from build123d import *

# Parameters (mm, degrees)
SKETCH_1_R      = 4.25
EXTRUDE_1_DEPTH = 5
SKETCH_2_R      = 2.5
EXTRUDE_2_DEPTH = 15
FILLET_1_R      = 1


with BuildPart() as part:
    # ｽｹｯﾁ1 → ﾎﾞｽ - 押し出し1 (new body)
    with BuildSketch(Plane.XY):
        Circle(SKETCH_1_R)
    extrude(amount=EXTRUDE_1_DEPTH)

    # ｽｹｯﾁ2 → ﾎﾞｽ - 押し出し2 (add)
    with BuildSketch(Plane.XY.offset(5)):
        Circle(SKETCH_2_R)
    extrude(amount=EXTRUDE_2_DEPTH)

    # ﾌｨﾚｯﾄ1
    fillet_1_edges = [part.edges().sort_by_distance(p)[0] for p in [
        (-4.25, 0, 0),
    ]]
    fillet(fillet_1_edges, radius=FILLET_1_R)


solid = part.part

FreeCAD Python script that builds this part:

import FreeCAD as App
import Part
import Sketcher
Q = App.Units.Quantity


def edges_at(feature, points):
    """Names of the edges that pass closest to the given points."""
    edges = feature.Shape.Edges
    near = lambda p: min(range(len(edges)), key=lambda i: edges[i].distToShape(Part.Vertex(*p))[0])
    return sorted({f"Edge{near(p) + 1}" for p in points})

doc = App.newDocument("Part")
body = doc.addObject("PartDesign::Body", "Body")

# Sketch on XY plane
sketch1 = body.newObject("Sketcher::SketchObject", "Sketch")
sketch1.AttachmentSupport = (doc.getObject("XY_Plane"), [""])
sketch1.MapMode = "FlatFace"
sketch1.addGeometry(Part.Circle(App.Vector(0, 0, 0), App.Vector(0, 0, 1), 4.2), False)
sketch1.addConstraint([
    Sketcher.Constraint("Coincident", 0, 3, -1, 1),
    Sketcher.Constraint("Diameter", 0, Q("8.5 mm")),
])
pad1 = body.newObject("PartDesign::Pad", "Pad")
pad1.Profile = sketch1
pad1.Length = 5

# Sketch on XY plane
sketch2 = body.newObject("Sketcher::SketchObject", "Sketch001")
sketch2.AttachmentSupport = (doc.getObject("XY_Plane"), [""])
sketch2.MapMode = "FlatFace"
sketch2.AttachmentOffset = App.Placement(App.Vector(0, 0, 5), App.Rotation())
sketch2.addGeometry(Part.Circle(App.Vector(0, 0, 0), App.Vector(0, 0, 1), 2.5), False)
sketch2.addConstraint([
    Sketcher.Constraint("Coincident", 0, 3, -1, 1),
    Sketcher.Constraint("Diameter", 0, Q("5 mm")),
])
pad2 = body.newObject("PartDesign::Pad", "Pad001")
pad2.Profile = sketch2
pad2.Length = 15
doc.recompute()

fillet = body.newObject("PartDesign::Fillet", "Fillet")
fillet.Base = (pad2, edges_at(pad2, [(-4.25, 0, 0)]))
fillet.Radius = 1

doc.recompute()
